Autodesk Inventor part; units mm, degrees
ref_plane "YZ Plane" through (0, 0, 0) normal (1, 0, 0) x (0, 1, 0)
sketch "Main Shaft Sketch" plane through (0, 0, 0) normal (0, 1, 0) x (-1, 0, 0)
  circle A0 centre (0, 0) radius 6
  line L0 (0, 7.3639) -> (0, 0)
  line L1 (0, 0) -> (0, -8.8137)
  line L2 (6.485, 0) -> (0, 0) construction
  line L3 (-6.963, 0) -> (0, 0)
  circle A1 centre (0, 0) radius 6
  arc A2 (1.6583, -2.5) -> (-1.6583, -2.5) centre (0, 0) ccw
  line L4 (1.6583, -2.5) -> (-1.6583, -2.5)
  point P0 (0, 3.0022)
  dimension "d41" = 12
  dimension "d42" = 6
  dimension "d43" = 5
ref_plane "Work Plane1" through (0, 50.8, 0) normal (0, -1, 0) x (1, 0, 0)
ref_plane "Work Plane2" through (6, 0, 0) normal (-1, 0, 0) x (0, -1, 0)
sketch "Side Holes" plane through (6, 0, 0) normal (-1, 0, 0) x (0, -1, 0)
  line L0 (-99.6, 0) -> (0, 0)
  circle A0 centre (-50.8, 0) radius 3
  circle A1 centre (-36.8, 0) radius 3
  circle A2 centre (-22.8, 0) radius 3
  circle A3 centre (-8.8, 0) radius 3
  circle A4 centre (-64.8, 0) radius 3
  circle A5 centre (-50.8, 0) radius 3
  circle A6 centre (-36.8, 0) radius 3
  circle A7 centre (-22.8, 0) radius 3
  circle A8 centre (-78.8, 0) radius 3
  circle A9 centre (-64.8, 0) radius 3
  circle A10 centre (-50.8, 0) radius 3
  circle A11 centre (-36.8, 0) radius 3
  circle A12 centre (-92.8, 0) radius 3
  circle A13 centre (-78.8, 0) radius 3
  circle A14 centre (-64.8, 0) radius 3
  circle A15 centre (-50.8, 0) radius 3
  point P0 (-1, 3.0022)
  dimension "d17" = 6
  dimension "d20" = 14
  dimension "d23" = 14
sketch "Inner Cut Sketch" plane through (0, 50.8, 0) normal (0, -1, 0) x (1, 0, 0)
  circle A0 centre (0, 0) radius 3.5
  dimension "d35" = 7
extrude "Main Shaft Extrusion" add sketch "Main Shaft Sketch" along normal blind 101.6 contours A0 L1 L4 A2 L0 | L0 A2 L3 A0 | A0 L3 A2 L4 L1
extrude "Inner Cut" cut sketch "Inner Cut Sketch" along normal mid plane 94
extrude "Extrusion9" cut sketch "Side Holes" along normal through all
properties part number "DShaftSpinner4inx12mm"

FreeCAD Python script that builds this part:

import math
import FreeCAD as App
import Part
import Sketcher

V = App.Vector

doc = App.newDocument("Part")
body = doc.addObject("PartDesign::Body", "Body")

sketch1 = doc.addObject("Sketcher::SketchObject", "Sketch")
body.addObject(sketch1)
sketch1.AttachmentSupport = (doc.XZ_Plane, [""])
sketch1.MapMode = "FlatFace"
sketch1.addGeometry([
    Part.Circle(V(0, 0, 0), V(0, 0, 1), 6),
    Part.LineSegment(V(-1.7, -2.5, 0), V(1.7, -2.5, 0)),
    Part.ArcOfCircle(Part.Circle(V(0, 0, 0), V(0, 0, 1), 3), math.radians(-56), math.radians(236)),
], False)
sketch1.addConstraint([
    Sketcher.Constraint("Coincident", 1, 1, 2, 2),
    Sketcher.Constraint("Coincident", 2, 1, 1, 2),
    Sketcher.Constraint("Horizontal", 1),
    Sketcher.Constraint("Coincident", 0, 3, -1, 1),
    Sketcher.Constraint("Coincident", 2, 3, -1, 1),
    Sketcher.Constraint("Diameter", 0, 12.0),
    Sketcher.Constraint("Radius", 2, 3.0),
    Sketcher.Constraint("DistanceY", 1, 1, -1, 1, 2.5),
])
pad1 = doc.addObject("PartDesign::Pad", "Pad")
body.addObject(pad1)
pad1.Profile = sketch1
pad1.Length = 101.6
pad1.Reversed = True

sketch2 = doc.addObject("Sketcher::SketchObject", "Sketch001")
body.addObject(sketch2)
sketch2.AttachmentSupport = (doc.XZ_Plane, [""])
sketch2.MapMode = "FlatFace"
sketch2.AttachmentOffset = App.Placement(V(0, 0, -50.8), App.Rotation())
sketch2.addGeometry(Part.Circle(V(0, 0, 0), V(0, 0, 1), 3.5), False)
sketch2.addConstraint([
    Sketcher.Constraint("Coincident", 0, 3, -1, 1),
    Sketcher.Constraint("Diameter", 0, 7.0),
])
pocket1 = doc.addObject("PartDesign::Pocket", "Pocket")
body.addObject(pocket1)
pocket1.Profile = sketch2
pocket1.Length = 94
pocket1.Midplane = True

sketch3 = doc.addObject("Sketcher::SketchObject", "Sketch002")
body.addObject(sketch3)
sketch3.AttachmentSupport = (doc.YZ_Plane, [""])
sketch3.MapMode = "FlatFace"
sketch3.AttachmentOffset = App.Placement(V(0, 0, 6), App.Rotation())
sketch3.addGeometry([
    Part.Circle(V(92.8, 0, 0), V(0, 0, 1), 3),
    Part.Circle(V(8.8, 0, 0), V(0, 0, 1), 3),
    Part.Circle(V(22.8, 0, 0), V(0, 0, 1), 3),
    Part.Circle(V(36.8, 0, 0), V(0, 0, 1), 3),
    Part.Circle(V(50.8, 0, 0), V(0, 0, 1), 3),
    Part.Circle(V(64.8, 0, 0), V(0, 0, 1), 3),
    Part.Circle(V(78.8, 0, 0), V(0, 0, 1), 3),
], False)
sketch3.addConstraint([
    Sketcher.Constraint("Equal", 0, 1),
    Sketcher.Constraint("Equal", 1, 2),
    Sketcher.Constraint("Equal", 2, 3),
    Sketcher.Constraint("Equal", 3, 4),
    Sketcher.Constraint("Equal", 4, 5),
    Sketcher.Constraint("Equal", 5, 6),
    Sketcher.Constraint("PointOnObject", 0, 3, -1),
    Sketcher.Constraint("PointOnObject", 1, 3, -1),
    Sketcher.Constraint("PointOnObject", 2, 3, -1),
    Sketcher.Constraint("PointOnObject", 3, 3, -1),
    Sketcher.Constraint("PointOnObject", 4, 3, -1),
    Sketcher.Constraint("PointOnObject", 5, 3, -1),
    Sketcher.Constraint("PointOnObject", 6, 3, -1),
    Sketcher.Constraint("Diameter", 0, 6.0),
    Sketcher.Constraint("DistanceX", 1, 3, 2, 3, 14.0),
    Sketcher.Constraint("DistanceX", 2, 3, 3, 3, 14.0),
    Sketcher.Constraint("DistanceX", 3, 3, 4, 3, 14.0),
    Sketcher.Constraint("DistanceX", 4, 3, 5, 3, 14.0),
    Sketcher.Constraint("DistanceX", 6, 3, 0, 3, 14.0),
    Sketcher.Constraint("DistanceX", 5, 3, 6, 3, 14.0),
    Sketcher.Constraint("DistanceX", -1, 1, 0, 3, 92.8),
])
pocket2 = doc.addObject("PartDesign::Pocket", "Pocket001")
body.addObject(pocket2)
pocket2.Profile = sketch3
pocket2.Type = "ThroughAll"

doc.recompute()
